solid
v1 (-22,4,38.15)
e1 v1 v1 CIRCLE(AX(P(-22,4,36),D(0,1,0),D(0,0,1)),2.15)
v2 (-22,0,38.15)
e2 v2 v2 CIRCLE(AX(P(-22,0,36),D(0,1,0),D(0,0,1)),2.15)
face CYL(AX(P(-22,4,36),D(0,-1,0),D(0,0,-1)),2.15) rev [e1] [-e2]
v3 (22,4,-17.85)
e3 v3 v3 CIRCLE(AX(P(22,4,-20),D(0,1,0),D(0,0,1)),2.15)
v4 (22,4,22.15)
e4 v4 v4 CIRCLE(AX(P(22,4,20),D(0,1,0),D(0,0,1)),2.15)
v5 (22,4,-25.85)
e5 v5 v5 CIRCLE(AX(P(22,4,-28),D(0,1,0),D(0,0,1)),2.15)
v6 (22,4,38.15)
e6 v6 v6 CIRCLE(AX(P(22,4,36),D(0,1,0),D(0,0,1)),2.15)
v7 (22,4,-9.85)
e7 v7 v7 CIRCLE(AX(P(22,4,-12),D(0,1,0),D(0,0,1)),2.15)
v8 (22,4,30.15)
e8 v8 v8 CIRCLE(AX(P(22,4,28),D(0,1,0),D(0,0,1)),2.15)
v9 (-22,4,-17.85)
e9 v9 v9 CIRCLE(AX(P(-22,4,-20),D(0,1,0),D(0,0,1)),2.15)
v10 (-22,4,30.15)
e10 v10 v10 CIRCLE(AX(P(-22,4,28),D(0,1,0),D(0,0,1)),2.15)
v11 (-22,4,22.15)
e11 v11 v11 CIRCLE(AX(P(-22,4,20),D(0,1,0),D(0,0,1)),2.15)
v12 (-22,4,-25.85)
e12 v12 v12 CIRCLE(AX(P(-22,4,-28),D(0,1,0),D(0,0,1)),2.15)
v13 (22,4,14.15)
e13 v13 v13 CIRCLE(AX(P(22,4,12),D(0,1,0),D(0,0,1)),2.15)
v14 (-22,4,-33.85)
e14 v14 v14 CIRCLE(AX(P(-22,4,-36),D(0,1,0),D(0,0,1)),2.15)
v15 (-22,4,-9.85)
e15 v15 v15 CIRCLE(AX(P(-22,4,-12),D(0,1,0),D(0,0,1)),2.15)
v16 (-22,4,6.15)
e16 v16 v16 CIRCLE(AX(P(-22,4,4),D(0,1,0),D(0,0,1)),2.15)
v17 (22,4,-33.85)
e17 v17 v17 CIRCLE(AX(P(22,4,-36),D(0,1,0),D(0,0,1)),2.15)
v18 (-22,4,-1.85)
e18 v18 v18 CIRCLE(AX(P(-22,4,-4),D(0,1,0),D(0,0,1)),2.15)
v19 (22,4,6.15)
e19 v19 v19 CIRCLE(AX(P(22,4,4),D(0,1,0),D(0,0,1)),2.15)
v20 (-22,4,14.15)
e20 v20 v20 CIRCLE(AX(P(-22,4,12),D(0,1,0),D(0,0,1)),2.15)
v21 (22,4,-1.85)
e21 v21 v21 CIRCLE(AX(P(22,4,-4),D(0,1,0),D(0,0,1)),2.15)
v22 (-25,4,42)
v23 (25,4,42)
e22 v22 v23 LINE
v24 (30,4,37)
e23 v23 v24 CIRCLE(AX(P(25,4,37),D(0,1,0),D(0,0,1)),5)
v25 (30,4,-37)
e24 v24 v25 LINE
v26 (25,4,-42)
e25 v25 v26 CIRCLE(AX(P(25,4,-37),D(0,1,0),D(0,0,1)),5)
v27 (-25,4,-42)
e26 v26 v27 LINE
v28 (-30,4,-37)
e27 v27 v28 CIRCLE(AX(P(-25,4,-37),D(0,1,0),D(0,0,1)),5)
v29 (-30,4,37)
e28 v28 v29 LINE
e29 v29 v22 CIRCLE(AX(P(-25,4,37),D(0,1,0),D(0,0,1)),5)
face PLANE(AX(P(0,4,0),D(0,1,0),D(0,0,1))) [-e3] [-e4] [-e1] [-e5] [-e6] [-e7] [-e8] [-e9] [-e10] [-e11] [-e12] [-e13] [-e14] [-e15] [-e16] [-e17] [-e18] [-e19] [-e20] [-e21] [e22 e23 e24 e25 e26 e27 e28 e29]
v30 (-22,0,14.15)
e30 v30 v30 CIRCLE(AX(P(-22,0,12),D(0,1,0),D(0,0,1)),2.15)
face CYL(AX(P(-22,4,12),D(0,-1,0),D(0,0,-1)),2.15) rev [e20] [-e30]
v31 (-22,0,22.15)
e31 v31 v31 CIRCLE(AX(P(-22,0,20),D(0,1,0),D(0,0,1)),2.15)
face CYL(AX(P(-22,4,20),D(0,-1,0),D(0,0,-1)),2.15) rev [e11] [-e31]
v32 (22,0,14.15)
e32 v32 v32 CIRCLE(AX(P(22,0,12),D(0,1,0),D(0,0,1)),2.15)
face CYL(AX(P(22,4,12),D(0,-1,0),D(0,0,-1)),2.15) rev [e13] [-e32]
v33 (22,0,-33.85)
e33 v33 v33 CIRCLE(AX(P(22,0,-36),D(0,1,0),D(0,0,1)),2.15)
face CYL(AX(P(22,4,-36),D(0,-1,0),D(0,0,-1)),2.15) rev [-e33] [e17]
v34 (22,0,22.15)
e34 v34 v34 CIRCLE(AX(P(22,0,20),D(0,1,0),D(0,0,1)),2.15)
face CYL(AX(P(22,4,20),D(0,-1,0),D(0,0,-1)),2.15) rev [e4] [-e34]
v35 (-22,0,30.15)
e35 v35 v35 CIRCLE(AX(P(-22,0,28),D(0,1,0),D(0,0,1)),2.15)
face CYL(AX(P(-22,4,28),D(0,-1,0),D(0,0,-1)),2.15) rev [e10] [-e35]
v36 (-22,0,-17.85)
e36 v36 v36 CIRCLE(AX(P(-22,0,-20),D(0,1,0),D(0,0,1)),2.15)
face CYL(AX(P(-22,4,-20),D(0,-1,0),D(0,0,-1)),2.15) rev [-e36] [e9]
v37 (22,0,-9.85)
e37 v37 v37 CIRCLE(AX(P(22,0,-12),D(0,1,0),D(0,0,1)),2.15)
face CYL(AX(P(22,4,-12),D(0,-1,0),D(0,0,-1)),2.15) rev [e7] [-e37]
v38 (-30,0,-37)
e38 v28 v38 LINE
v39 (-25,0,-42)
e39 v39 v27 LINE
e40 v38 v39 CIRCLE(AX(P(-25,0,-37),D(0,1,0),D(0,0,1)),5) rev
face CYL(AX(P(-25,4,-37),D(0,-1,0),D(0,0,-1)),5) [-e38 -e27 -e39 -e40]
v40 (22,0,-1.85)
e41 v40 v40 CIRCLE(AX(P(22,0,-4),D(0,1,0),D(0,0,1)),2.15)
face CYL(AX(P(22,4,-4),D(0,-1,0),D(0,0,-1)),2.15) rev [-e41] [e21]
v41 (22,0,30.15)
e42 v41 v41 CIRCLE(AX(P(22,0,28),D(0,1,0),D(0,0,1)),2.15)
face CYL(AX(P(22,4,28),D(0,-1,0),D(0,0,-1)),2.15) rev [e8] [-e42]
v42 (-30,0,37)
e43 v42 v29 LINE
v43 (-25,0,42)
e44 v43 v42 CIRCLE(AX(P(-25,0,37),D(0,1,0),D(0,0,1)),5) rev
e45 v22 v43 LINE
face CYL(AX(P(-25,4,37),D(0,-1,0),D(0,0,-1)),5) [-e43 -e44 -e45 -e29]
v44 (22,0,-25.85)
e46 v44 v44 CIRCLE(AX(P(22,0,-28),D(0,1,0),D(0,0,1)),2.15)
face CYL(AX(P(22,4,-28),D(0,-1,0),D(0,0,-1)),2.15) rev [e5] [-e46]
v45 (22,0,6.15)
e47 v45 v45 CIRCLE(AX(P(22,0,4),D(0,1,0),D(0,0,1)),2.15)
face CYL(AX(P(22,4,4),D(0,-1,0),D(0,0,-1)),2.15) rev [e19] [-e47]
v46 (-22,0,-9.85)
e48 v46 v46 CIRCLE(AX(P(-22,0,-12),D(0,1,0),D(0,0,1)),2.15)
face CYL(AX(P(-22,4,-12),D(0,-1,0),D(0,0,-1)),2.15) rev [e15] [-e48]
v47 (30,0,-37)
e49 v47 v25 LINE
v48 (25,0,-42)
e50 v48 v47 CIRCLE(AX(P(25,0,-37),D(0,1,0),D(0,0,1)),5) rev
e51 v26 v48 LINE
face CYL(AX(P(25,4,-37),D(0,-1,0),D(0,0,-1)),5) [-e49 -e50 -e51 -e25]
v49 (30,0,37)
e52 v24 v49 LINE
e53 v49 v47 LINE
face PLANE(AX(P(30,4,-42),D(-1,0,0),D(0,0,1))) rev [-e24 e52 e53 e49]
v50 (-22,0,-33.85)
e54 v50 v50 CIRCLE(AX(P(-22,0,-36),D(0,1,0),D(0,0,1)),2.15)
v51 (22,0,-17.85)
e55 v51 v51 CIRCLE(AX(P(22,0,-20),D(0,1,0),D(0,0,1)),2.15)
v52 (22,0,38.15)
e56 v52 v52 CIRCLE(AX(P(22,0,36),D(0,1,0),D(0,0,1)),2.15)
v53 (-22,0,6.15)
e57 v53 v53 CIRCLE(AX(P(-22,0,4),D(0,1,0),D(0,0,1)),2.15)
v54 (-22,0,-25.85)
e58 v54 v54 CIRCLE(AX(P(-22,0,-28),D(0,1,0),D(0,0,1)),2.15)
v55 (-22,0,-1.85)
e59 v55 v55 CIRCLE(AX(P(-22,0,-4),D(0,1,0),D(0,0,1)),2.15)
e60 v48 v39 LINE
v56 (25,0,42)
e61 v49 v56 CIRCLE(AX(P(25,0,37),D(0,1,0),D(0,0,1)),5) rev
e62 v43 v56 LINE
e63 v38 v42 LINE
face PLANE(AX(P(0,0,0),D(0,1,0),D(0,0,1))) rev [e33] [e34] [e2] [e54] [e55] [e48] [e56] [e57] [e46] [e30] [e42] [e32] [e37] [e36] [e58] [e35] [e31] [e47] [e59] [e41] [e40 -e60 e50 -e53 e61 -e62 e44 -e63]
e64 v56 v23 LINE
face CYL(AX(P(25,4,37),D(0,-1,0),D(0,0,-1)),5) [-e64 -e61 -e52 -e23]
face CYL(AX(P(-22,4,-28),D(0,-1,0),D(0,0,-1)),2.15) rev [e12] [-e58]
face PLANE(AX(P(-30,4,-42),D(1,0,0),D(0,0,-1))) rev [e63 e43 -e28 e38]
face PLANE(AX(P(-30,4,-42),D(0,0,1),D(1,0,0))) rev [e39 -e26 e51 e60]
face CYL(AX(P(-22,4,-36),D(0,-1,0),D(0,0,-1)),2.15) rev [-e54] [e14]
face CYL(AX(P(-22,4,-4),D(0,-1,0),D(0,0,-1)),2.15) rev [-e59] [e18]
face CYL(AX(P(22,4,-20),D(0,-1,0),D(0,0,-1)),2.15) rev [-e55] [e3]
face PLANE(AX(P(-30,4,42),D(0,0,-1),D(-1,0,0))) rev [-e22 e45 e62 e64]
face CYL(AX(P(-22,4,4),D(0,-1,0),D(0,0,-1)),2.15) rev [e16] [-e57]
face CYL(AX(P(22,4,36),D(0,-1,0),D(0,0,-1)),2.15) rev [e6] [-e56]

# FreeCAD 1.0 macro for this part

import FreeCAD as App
import Part
import Sketcher
from FreeCAD import Vector
Q = App.Units.Quantity


def edges_at(feature, points):
    """Names of the edges that pass closest to the given points."""
    edges = feature.Shape.Edges
    near = lambda p: min(range(len(edges)), key=lambda i: edges[i].distToShape(Part.Vertex(*p))[0])
    return sorted({f"Edge{near(p) + 1}" for p in points})


def add_polygon(sketch, points):
    """Adds a closed chain of lines whose ends are joined by coincident constraints."""
    first, n = sketch.GeometryCount, len(points)
    for a, b in zip(points, points[1:] + points[:1]):
        sketch.addGeometry(Part.LineSegment(App.Vector(*a, 0), App.Vector(*b, 0)), False)
    for i in range(n):
        sketch.addConstraint(Sketcher.Constraint("Coincident", first + i, 2, first + (i + 1) % n, 1))

doc = App.newDocument("Part")
body = doc.addObject("PartDesign::Body", "Body")

# Sketch on XZ plane
sketch1 = doc.addObject("Sketcher::SketchObject", "Sketch")
body.addObject(sketch1)
sketch1.AttachmentSupport = (doc.XZ_Plane, [""])
sketch1.MapMode = "FlatFace"
add_polygon(sketch1, [(-30, -42), (-30, 42), (30, 42), (30, -42)])  # lines 0-3
sketch1.addGeometry(Part.Circle(Vector(-22, 36, 0), Vector(0, 0, 1), 2.1), False)  # 4
sketch1.addGeometry(Part.Circle(Vector(-22, 28, 0), Vector(0, 0, 1), 2.1), False)  # 5
sketch1.addGeometry(Part.Circle(Vector(-22, 20, 0), Vector(0, 0, 1), 2.1), False)  # 6
sketch1.addGeometry(Part.Circle(Vector(-22, 12, 0), Vector(0, 0, 1), 2.1), False)  # 7
sketch1.addGeometry(Part.Circle(Vector(-22, 4, 0), Vector(0, 0, 1), 2.1), False)  # 8
sketch1.addGeometry(Part.Circle(Vector(22, 36, 0), Vector(0, 0, 1), 2.1), False)  # 9
sketch1.addGeometry(Part.Circle(Vector(22, 28, 0), Vector(0, 0, 1), 2.1), False)  # 10
sketch1.addGeometry(Part.Circle(Vector(22, 20, 0), Vector(0, 0, 1), 2.1), False)  # 11
sketch1.addGeometry(Part.Circle(Vector(22, 12, 0), Vector(0, 0, 1), 2.1), False)  # 12
sketch1.addGeometry(Part.Circle(Vector(22, 4, 0), Vector(0, 0, 1), 2.1), False)  # 13
sketch1.addGeometry(Part.Circle(Vector(-22, -4, 0), Vector(0, 0, 1), 2.1), False)  # 14
sketch1.addGeometry(Part.Circle(Vector(-22, -12, 0), Vector(0, 0, 1), 2.1), False)  # 15
sketch1.addGeometry(Part.Circle(Vector(-22, -20, 0), Vector(0, 0, 1), 2.1), False)  # 16
sketch1.addGeometry(Part.Circle(Vector(-22, -28, 0), Vector(0, 0, 1), 2.1), False)  # 17
sketch1.addGeometry(Part.Circle(Vector(-22, -36, 0), Vector(0, 0, 1), 2.1), False)  # 18
sketch1.addGeometry(Part.Circle(Vector(22, -4, 0), Vector(0, 0, 1), 2.1), False)  # 19
sketch1.addGeometry(Part.Circle(Vector(22, -12, 0), Vector(0, 0, 1), 2.1), False)  # 20
sketch1.addGeometry(Part.Circle(Vector(22, -20, 0), Vector(0, 0, 1), 2.1), False)  # 21
sketch1.addGeometry(Part.Circle(Vector(22, -28, 0), Vector(0, 0, 1), 2.1), False)  # 22
sketch1.addGeometry(Part.Circle(Vector(22, -36, 0), Vector(0, 0, 1), 2.1), False)  # 23
sketch1.addConstraint([
    Sketcher.Constraint("Vertical", 0),
    Sketcher.Constraint("Horizontal", 1),
    Sketcher.Constraint("Vertical", 2),
    Sketcher.Constraint("Horizontal", 3),
    Sketcher.Constraint("Equal", 4, 5),
    Sketcher.Constraint("Equal", 5, 6),
    Sketcher.Constraint("Equal", 6, 7),
    Sketcher.Constraint("Equal", 7, 8),
    Sketcher.Constraint("Equal", 8, 9),
    Sketcher.Constraint("Equal", 9, 10),
    Sketcher.Constraint("Equal", 10, 11),
    Sketcher.Constraint("Equal", 11, 12),
    Sketcher.Constraint("Equal", 12, 13),
    Sketcher.Constraint("Equal", 13, 14),
    Sketcher.Constraint("Equal", 14, 15),
    Sketcher.Constraint("Equal", 15, 16),
    Sketcher.Constraint("Equal", 16, 17),
    Sketcher.Constraint("Equal", 17, 18),
    Sketcher.Constraint("Equal", 18, 19),
    Sketcher.Constraint("Equal", 19, 20),
    Sketcher.Constraint("Equal", 20, 21),
    Sketcher.Constraint("Equal", 21, 22),
    Sketcher.Constraint("Equal", 22, 23),
    Sketcher.Constraint("Symmetric", 13, 3, 14, 3, -1, 1),
    Sketcher.Constraint("Symmetric", 12, 3, 15, 3, -1, 1),
    Sketcher.Constraint("Symmetric", 11, 3, 16, 3, -1, 1),
    Sketcher.Constraint("Symmetric", 10, 3, 17, 3, -1, 1),
    Sketcher.Constraint("Symmetric", 9, 3, 18, 3, -1, 1),
    Sketcher.Constraint("Symmetric", 8, 3, 19, 3, -1, 1),
    Sketcher.Constraint("Symmetric", 7, 3, 20, 3, -1, 1),
    Sketcher.Constraint("Symmetric", 6, 3, 21, 3, -1, 1),
    Sketcher.Constraint("Symmetric", 5, 3, 22, 3, -1, 1),
    Sketcher.Constraint("Symmetric", 4, 3, 23, 3, -1, 1),
    Sketcher.Constraint("Symmetric", 0, 2, 2, 2, -1, 1),
    Sketcher.Constraint("Symmetric", 4, 3, 9, 3, -2),
    Sketcher.Constraint("Symmetric", 5, 3, 10, 3, -2),
    Sketcher.Constraint("Symmetric", 6, 3, 11, 3, -2),
    Sketcher.Constraint("Symmetric", 7, 3, 12, 3, -2),
    Sketcher.Constraint("Symmetric", 8, 3, 13, 3, -2),
    Sketcher.Constraint("Vertical", 4, 3, 5, 3),
    Sketcher.Constraint("Vertical", 5, 3, 6, 3),
    Sketcher.Constraint("Vertical", 6, 3, 7, 3),
    Sketcher.Constraint("Vertical", 7, 3, 8, 3),
    Sketcher.Constraint("Diameter", 4, Q("4.3 mm")),
    Sketcher.Constraint("DistanceX", 1, 1, 1, 2, Q("60 mm")),
    Sketcher.Constraint("DistanceY", 0, 1, 0, 2, Q("84 mm")),
    Sketcher.Constraint("DistanceX", 4, 3, -1, 1, Q("22 mm")),
    Sketcher.Constraint("DistanceY", -1, 1, 4, 3, Q("36 mm")),
    Sketcher.Constraint("DistanceY", -1, 1, 5, 3, Q("28 mm")),
    Sketcher.Constraint("DistanceY", -1, 1, 6, 3, Q("20 mm")),
    Sketcher.Constraint("DistanceY", -1, 1, 7, 3, Q("12 mm")),
    Sketcher.Constraint("DistanceY", -1, 1, 8, 3, Q("4 mm")),
])
pad1 = doc.addObject("PartDesign::Pad", "Pad")
body.addObject(pad1)
pad1.Profile = sketch1
pad1.Length = 4
pad1.Reversed = True
doc.recompute()

fillet = doc.addObject("PartDesign::Fillet", "Fillet")
body.addObject(fillet)
fillet.Base = (pad1, edges_at(pad1, [
    (30, 2, 42),
    (-30, 2, 42),
    (-30, 2, -42),
    (30, 2, -42),
]))
fillet.Radius = 5

doc.recompute()
